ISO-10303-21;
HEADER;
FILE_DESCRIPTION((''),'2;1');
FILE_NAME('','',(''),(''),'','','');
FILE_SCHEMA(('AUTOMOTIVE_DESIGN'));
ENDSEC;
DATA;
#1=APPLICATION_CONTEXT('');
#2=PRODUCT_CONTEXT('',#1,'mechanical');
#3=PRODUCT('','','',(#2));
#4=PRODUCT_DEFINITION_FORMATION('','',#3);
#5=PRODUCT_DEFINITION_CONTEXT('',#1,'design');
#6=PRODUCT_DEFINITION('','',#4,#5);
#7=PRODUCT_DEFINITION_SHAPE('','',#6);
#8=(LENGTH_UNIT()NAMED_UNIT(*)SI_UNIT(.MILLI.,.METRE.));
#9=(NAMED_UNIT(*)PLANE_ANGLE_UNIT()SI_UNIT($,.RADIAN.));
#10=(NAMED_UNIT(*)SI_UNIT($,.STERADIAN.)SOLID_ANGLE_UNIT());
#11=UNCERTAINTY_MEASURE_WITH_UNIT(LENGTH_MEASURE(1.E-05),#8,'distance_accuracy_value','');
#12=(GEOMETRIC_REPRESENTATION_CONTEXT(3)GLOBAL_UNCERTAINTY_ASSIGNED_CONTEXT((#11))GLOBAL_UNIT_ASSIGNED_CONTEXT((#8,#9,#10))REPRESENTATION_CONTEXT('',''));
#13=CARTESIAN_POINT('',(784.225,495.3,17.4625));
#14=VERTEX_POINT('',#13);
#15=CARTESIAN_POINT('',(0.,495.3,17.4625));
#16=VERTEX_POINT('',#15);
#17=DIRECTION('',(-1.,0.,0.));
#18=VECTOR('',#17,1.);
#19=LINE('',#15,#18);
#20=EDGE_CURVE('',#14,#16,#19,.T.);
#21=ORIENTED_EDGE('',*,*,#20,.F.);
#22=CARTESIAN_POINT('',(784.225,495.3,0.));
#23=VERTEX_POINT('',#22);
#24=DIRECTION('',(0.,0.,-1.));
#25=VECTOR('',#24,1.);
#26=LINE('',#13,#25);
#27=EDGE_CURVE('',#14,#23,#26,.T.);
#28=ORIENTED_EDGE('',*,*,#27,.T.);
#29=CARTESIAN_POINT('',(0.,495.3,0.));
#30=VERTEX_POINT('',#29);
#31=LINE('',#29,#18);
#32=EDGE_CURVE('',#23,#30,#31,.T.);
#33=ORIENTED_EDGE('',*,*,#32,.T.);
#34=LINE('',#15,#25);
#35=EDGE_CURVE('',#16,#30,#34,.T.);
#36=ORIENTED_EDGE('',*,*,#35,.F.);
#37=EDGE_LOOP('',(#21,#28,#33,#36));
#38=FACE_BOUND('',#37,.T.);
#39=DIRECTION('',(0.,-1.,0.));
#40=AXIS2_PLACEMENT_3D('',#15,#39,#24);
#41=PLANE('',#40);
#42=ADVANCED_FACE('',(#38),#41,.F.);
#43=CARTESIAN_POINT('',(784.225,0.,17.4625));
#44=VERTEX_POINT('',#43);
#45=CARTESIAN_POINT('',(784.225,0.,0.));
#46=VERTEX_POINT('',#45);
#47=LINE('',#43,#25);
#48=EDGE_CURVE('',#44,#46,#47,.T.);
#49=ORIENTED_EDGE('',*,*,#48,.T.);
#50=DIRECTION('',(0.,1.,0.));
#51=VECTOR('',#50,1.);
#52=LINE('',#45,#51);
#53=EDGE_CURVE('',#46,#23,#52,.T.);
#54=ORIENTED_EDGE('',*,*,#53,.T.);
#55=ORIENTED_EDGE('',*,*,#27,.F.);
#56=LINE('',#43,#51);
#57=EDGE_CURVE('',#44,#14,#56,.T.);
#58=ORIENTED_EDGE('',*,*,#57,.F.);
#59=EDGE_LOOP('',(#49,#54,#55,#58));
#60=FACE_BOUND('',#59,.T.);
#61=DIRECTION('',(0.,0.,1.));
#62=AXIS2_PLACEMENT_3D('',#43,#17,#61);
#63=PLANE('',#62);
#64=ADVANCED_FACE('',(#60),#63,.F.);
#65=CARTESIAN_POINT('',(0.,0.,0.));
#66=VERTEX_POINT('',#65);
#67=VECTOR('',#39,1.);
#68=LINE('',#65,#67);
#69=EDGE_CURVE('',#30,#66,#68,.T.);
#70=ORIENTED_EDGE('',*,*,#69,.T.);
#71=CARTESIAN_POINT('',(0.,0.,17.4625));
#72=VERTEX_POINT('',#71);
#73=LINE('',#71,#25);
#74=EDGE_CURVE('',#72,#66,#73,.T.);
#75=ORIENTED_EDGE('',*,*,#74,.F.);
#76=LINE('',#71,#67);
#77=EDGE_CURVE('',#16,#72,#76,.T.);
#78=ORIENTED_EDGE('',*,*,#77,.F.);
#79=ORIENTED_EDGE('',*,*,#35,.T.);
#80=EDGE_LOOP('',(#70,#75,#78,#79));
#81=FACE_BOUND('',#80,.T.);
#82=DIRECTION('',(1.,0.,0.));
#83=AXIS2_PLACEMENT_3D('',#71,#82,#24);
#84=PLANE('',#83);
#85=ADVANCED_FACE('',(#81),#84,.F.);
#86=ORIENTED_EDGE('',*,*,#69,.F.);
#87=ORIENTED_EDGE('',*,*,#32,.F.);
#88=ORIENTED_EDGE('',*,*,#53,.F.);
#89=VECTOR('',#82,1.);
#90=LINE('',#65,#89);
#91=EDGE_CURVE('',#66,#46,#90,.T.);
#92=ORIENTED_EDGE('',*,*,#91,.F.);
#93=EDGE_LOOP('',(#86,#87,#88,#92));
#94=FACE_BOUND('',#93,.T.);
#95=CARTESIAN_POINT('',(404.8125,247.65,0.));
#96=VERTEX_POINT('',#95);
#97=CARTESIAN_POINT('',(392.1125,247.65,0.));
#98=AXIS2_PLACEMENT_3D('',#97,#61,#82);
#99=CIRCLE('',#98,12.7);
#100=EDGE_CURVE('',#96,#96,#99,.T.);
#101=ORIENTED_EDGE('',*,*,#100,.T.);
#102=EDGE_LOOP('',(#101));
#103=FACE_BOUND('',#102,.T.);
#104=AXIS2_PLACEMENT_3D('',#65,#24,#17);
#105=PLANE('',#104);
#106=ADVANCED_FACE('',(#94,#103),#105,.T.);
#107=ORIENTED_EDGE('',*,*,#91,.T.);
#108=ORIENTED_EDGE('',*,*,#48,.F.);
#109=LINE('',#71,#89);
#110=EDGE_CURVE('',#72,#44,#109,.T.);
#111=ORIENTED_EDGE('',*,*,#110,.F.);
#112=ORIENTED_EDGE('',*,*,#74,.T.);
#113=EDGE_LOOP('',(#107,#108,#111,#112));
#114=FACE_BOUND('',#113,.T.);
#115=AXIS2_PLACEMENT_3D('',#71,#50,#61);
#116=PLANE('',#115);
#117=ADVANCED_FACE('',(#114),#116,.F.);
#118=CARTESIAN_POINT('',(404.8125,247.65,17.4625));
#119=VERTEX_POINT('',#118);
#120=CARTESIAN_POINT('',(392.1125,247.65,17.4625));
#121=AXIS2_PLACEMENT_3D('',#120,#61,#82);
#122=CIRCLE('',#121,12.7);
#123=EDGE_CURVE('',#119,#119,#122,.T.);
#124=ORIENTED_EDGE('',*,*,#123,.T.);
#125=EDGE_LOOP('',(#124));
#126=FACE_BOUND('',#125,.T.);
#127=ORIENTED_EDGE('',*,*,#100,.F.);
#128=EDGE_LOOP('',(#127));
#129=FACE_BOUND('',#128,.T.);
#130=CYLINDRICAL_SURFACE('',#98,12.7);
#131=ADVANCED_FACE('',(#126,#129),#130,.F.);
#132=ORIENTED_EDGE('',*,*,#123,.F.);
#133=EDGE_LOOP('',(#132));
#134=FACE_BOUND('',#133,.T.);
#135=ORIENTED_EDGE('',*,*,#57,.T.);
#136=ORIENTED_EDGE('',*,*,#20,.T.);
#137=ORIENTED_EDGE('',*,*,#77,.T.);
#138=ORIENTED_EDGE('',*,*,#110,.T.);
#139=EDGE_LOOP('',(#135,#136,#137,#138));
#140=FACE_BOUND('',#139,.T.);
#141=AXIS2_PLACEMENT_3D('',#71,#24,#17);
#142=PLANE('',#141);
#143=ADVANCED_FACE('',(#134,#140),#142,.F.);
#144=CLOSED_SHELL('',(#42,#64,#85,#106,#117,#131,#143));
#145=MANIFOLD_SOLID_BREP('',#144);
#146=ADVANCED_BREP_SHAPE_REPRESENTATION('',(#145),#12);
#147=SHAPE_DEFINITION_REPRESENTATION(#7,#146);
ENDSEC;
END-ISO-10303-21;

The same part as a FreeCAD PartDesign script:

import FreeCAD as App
import Part
import Sketcher
Q = App.Units.Quantity

doc = App.newDocument("Part")
body = doc.addObject("PartDesign::Body", "Body")

# Sketch on XY plane
sketch1 = body.newObject("Sketcher::SketchObject", "Sketch")
sketch1.AttachmentSupport = (doc.getObject("XY_Plane"), [""])
sketch1.MapMode = "FlatFace"
sketch1.addGeometry([
    Part.LineSegment(App.Vector(0, 495, 0), App.Vector(0, 0, 0)),
    Part.LineSegment(App.Vector(0, 0, 0), App.Vector(784, 0, 0)),
    Part.LineSegment(App.Vector(784, 0, 0), App.Vector(784, 495, 0)),
    Part.LineSegment(App.Vector(784, 495, 0), App.Vector(0, 495, 0)),
], False)
sketch1.addConstraint([
    Sketcher.Constraint("Coincident", 0, 2, 1, 1),
    Sketcher.Constraint("Coincident", 1, 2, 2, 1),
    Sketcher.Constraint("Coincident", 2, 2, 3, 1),
    Sketcher.Constraint("Coincident", 3, 2, 0, 1),
    Sketcher.Constraint("Vertical", 0),
    Sketcher.Constraint("Horizontal", 1),
    Sketcher.Constraint("Vertical", 2),
    Sketcher.Constraint("Horizontal", 3),
    Sketcher.Constraint("Coincident", 0, 2, -1, 1),
    Sketcher.Constraint("DistanceY", 0, 2, 0, 1, Q("19.5 in")),
    Sketcher.Constraint("DistanceX", 1, 1, 1, 2, Q("30.875 in")),
])
pad1 = body.newObject("PartDesign::Pad", "Pad")
pad1.Profile = sketch1
pad1.Length = Q("0.6875 in")

# Sketch on XY plane
sketch2 = body.newObject("Sketcher::SketchObject", "Sketch001")
sketch2.AttachmentSupport = (doc.getObject("XY_Plane"), [""])
sketch2.MapMode = "FlatFace"
sketch2.AttachmentOffset = App.Placement(App.Vector(0, 0, 0.6875 * 25.4), App.Rotation())
sketch2.addGeometry(Part.Circle(App.Vector(392, 248, 0), App.Vector(0, 0, 1), 13), False)
sketch2.addConstraint([
    Sketcher.Constraint("Diameter", 0, Q("1 in")),
    Sketcher.Constraint("DistanceY", -1, 1, 0, 3, Q("9.75 in")),
    Sketcher.Constraint("DistanceX", -1, 1, 0, 3, Q("15.4375 in")),
])
pocket1 = body.newObject("PartDesign::Pocket", "Pocket")
pocket1.Profile = sketch2
pocket1.Length = Q("0.6875 in")

doc.recompute()
